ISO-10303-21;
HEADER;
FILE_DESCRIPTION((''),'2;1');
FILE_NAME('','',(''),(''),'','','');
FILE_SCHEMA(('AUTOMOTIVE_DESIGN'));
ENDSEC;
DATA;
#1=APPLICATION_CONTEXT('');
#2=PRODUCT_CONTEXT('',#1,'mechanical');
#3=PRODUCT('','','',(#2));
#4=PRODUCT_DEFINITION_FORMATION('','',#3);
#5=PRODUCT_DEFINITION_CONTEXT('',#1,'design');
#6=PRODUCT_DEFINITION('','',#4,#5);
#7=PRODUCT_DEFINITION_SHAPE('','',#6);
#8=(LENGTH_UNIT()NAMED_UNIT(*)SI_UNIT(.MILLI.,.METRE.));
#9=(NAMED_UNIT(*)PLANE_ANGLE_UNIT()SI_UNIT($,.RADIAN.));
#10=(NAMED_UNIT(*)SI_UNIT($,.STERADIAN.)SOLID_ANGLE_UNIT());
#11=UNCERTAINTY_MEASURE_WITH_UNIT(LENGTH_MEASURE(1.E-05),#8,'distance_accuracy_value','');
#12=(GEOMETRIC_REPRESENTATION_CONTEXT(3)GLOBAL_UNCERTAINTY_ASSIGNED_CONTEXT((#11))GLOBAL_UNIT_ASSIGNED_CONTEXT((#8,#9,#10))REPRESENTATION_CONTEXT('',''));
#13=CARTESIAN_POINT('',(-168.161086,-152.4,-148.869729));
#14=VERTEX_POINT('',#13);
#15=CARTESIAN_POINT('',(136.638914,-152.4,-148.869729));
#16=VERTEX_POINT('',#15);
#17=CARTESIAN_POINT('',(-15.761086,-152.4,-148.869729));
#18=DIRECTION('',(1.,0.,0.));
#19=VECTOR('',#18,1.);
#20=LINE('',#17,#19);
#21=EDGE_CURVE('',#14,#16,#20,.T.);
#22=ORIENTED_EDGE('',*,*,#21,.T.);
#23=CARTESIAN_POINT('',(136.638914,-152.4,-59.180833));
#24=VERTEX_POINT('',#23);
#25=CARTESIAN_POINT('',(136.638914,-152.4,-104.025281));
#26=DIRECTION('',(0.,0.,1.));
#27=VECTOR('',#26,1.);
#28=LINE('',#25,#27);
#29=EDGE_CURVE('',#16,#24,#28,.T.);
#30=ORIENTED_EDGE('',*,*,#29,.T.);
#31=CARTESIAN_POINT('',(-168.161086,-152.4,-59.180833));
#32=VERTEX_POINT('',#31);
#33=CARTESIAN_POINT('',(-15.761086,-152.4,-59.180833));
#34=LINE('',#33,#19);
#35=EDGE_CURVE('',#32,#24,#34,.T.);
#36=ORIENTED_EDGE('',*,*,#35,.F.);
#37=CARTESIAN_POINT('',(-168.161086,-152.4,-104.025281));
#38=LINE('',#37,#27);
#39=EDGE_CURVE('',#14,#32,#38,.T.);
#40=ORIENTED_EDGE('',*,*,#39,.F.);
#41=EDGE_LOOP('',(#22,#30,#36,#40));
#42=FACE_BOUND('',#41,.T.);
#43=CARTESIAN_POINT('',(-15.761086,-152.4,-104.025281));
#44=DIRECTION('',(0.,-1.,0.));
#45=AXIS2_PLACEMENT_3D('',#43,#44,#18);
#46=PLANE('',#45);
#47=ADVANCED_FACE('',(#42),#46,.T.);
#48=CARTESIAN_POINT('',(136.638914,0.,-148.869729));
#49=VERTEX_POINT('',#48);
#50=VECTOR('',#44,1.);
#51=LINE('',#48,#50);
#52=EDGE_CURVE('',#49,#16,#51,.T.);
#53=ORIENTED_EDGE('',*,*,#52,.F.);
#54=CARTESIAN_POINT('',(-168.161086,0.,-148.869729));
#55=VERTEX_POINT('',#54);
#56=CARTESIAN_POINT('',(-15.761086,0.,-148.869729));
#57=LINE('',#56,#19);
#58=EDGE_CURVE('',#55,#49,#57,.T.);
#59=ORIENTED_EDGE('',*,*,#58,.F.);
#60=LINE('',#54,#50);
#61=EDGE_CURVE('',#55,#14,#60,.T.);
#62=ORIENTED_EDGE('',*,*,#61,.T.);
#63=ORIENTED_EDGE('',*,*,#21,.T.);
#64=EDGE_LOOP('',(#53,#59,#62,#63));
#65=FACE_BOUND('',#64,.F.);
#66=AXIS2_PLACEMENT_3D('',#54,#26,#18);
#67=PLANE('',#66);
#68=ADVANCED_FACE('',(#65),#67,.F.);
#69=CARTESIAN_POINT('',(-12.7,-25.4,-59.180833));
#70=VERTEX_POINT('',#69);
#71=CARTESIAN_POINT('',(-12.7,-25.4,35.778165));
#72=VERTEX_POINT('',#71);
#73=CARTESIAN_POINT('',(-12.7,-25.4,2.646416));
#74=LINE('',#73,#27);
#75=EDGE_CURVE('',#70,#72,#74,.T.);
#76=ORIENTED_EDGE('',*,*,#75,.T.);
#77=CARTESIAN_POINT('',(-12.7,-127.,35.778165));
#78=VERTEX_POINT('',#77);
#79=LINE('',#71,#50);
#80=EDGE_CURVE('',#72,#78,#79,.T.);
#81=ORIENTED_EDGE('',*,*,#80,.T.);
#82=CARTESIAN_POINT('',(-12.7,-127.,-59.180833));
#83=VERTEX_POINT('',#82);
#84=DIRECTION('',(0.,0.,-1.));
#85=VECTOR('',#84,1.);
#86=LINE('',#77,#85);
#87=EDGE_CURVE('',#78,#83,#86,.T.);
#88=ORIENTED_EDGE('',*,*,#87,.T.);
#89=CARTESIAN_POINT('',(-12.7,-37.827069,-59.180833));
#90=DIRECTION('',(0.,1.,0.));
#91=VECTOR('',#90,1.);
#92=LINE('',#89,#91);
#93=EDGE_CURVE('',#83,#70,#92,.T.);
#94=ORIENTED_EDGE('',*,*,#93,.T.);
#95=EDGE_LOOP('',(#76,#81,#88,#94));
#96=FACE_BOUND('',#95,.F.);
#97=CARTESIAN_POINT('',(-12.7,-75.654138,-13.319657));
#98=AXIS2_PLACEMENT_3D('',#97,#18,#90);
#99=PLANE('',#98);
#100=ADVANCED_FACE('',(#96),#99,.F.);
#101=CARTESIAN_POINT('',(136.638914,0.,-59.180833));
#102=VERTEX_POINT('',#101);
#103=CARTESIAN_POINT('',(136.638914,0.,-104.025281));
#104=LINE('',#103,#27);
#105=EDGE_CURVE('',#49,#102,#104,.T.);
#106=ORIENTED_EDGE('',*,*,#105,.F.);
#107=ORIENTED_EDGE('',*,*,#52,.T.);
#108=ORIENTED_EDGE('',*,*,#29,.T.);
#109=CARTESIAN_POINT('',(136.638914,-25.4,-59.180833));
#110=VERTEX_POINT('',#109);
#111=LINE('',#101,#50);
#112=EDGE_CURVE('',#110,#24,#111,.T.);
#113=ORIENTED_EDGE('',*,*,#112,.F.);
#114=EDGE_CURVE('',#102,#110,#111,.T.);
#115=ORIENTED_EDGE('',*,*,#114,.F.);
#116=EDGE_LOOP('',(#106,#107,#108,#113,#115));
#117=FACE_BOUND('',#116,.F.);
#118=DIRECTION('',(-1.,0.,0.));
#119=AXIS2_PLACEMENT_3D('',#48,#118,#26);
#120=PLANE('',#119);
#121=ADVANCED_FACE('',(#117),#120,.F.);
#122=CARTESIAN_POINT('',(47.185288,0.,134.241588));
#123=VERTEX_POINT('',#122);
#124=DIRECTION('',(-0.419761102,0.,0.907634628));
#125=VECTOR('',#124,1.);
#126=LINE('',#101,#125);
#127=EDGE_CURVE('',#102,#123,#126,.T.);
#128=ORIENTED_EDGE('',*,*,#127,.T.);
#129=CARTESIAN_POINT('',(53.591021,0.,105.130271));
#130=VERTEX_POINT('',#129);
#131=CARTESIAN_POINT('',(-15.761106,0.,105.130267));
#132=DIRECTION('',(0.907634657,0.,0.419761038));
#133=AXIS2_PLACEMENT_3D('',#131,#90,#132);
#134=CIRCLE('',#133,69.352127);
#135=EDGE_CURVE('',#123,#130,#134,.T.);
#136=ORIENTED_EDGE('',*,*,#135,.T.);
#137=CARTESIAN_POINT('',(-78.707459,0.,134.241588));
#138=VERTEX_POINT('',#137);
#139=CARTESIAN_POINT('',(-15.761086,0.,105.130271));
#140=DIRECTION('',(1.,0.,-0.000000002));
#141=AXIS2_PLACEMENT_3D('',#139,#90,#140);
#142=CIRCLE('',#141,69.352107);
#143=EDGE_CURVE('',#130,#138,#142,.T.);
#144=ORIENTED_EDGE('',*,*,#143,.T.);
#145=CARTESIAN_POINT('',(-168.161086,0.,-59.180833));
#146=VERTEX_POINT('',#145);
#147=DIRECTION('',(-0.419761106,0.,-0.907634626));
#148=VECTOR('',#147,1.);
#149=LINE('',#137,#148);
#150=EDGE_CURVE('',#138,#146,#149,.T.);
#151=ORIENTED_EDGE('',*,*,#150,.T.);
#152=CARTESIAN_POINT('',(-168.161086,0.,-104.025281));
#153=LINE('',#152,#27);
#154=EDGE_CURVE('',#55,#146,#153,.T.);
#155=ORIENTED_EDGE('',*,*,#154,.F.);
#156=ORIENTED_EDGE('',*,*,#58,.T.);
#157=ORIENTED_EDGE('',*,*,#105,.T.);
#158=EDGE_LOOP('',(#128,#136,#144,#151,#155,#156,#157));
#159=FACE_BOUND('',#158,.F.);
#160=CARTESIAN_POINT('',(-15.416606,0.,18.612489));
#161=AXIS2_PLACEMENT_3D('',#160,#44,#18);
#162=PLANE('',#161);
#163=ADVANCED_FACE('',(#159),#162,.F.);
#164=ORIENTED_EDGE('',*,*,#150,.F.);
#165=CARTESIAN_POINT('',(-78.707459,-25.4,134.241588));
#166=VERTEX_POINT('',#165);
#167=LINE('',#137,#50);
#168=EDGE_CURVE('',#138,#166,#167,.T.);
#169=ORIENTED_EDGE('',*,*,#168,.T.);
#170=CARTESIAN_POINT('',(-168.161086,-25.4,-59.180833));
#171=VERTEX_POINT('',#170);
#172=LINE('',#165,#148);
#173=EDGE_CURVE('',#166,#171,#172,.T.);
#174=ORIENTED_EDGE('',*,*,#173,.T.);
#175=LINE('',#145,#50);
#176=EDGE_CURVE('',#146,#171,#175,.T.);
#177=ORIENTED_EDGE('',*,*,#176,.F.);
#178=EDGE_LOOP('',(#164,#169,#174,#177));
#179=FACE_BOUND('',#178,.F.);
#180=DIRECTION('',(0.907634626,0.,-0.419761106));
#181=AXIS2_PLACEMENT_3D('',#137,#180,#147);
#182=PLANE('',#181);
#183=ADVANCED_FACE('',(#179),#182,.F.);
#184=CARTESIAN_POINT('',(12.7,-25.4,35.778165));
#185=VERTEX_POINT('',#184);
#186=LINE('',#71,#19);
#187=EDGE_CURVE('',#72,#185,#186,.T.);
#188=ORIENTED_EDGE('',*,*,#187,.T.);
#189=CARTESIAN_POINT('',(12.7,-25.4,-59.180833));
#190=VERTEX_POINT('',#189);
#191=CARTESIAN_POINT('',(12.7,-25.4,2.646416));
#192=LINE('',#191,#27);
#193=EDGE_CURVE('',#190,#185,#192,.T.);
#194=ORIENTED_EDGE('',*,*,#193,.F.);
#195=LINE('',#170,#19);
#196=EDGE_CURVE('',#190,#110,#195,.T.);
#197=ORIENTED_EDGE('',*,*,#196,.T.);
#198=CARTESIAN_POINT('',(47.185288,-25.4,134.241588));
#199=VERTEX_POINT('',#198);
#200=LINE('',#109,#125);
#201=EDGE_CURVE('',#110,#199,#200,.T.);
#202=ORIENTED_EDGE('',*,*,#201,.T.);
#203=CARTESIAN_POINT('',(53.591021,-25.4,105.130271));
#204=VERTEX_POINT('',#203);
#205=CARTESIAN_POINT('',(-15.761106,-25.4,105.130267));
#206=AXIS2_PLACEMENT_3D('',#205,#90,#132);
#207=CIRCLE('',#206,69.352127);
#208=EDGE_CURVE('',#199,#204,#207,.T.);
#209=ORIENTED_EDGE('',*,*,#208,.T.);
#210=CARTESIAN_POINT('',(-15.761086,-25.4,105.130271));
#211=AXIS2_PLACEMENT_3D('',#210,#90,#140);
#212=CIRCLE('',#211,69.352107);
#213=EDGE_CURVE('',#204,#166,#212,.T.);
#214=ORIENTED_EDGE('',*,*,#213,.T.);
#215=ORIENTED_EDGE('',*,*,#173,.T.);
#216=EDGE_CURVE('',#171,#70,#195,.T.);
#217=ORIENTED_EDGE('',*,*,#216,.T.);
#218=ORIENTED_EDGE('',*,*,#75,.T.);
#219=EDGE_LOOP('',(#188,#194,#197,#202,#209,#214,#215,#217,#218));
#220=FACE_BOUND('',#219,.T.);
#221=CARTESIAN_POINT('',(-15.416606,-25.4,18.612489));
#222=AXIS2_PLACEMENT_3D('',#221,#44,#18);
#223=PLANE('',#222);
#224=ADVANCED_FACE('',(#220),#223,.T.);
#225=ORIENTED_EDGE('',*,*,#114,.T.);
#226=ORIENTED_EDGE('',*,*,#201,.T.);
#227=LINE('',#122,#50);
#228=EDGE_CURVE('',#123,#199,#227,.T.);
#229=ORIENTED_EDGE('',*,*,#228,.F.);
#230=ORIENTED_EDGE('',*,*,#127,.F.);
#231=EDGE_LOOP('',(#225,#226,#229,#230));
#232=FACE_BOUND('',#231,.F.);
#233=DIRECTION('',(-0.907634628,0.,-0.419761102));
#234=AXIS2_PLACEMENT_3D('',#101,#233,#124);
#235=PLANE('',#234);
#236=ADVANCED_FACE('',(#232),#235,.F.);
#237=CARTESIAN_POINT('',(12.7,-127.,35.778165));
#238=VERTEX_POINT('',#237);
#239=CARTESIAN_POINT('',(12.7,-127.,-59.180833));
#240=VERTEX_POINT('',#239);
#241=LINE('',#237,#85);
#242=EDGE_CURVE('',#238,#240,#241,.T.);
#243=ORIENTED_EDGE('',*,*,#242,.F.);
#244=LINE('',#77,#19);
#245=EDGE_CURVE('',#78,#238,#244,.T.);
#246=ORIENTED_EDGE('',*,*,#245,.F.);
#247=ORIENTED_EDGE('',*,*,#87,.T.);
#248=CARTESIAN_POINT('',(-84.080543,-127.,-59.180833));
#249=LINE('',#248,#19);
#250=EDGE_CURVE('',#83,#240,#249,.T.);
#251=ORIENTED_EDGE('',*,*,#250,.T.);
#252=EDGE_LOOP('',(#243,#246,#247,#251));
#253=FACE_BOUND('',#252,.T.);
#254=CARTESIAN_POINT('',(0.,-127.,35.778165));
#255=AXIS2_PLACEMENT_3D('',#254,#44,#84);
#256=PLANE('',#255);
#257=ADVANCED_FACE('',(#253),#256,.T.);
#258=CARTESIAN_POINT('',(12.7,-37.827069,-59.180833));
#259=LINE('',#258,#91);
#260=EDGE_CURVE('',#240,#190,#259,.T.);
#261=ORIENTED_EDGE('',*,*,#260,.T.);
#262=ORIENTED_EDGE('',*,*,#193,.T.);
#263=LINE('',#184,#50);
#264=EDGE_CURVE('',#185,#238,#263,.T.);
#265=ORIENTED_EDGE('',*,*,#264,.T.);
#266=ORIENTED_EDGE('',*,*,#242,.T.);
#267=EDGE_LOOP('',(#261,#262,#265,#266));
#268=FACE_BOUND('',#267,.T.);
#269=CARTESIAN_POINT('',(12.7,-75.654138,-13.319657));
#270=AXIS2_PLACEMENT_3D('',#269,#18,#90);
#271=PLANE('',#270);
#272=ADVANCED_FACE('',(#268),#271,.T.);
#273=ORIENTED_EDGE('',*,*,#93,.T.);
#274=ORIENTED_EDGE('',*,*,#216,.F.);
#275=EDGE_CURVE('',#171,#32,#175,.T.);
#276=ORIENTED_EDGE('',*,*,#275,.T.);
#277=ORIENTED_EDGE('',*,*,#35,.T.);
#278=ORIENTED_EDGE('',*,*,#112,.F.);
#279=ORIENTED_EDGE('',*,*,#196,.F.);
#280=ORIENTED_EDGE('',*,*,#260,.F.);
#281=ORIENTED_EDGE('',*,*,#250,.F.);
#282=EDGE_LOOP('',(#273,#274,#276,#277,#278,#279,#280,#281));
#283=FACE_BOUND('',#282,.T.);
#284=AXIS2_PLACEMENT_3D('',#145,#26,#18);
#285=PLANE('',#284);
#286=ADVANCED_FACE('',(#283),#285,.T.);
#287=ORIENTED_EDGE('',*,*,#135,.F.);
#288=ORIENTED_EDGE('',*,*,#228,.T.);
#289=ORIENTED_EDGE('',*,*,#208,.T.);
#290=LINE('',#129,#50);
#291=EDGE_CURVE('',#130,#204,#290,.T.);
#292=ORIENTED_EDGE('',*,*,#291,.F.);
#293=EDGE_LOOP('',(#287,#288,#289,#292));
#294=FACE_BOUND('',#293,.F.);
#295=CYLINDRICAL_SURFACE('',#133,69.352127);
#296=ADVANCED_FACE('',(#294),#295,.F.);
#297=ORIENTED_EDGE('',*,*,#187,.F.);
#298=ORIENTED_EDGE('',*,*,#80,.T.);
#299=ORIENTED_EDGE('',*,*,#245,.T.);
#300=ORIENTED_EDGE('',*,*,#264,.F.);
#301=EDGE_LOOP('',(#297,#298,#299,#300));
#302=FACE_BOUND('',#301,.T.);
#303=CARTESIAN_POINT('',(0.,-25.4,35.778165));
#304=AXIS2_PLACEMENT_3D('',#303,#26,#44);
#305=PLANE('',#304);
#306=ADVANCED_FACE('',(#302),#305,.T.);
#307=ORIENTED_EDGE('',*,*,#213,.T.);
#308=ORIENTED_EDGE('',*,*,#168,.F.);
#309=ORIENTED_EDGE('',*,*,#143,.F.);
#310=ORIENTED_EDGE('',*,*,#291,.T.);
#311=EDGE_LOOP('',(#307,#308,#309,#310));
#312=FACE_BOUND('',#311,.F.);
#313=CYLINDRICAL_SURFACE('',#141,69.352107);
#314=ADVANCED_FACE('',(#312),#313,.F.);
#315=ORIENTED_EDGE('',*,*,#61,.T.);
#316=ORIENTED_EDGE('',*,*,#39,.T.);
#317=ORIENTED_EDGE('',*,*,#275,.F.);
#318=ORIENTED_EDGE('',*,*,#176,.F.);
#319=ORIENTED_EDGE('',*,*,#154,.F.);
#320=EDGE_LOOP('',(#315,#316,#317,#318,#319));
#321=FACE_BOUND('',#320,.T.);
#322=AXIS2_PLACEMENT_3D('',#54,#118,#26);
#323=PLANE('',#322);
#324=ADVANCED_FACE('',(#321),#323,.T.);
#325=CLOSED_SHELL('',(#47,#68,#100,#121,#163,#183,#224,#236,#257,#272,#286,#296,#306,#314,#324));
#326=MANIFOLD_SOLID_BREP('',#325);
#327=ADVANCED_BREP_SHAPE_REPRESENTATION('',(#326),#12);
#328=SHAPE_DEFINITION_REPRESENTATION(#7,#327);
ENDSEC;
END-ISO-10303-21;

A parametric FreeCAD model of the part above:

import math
import FreeCAD as App
import Part
import Sketcher

V = App.Vector
Q = App.Units.Quantity

doc = App.newDocument("Part")
body = doc.addObject("PartDesign::Body", "Body")

sketch1 = body.newObject("Sketcher::SketchObject", "Sketch")
sketch1.AttachmentSupport = (doc.getObject("XZ_Plane"), [""])
sketch1.MapMode = "FlatFace"
sketch1.addGeometry([
    Part.LineSegment(V(-168.161086, -59.180833, 0), V(-168.161086, -148.869729, 0)),
    Part.LineSegment(V(-168.161086, -148.869729, 0), V(136.638914, -148.869729, 0)),
    Part.LineSegment(V(136.638914, -148.869729, 0), V(136.638914, -59.180833, 0)),
    Part.LineSegment(V(136.638914, -59.180833, 0), V(-168.161086, -59.180833, 0)),
], False)
sketch1.addConstraint([
    Sketcher.Constraint("Coincident", 0, 2, 1, 1),
    Sketcher.Constraint("Coincident", 1, 2, 2, 1),
    Sketcher.Constraint("Coincident", 2, 2, 3, 1),
    Sketcher.Constraint("Coincident", 3, 2, 0, 1),
    Sketcher.Constraint("Vertical", 0),
    Sketcher.Constraint("Horizontal", 1),
    Sketcher.Constraint("Vertical", 2),
    Sketcher.Constraint("Horizontal", 3),
    Sketcher.Constraint("DistanceX", 1, 1, 1, 2, Q("12 in")),
    Sketcher.Constraint("DistanceY", 0, 2, 0, 1, Q("89.688896 mm")),
    Sketcher.Constraint("DistanceY", 0, 2, -1, 1, Q("148.869729 mm")),
    Sketcher.Constraint("DistanceX", 0, 2, -1, 1, Q("168.161086 mm")),
])
pad1 = body.newObject("PartDesign::Pad", "Pad")
pad1.Profile = sketch1
pad1.Length = Q("6 in")

sketch2 = body.newObject("Sketcher::SketchObject", "Sketch001")
sketch2.AttachmentSupport = (doc.getObject("XZ_Plane"), [""])
sketch2.MapMode = "FlatFace"
sketch2.addGeometry([
    Part.LineSegment(V(-78.707459, 134.241588, 0), V(-168.161086, -59.180833, 0)),
    Part.LineSegment(V(-168.161086, -59.180833, 0), V(136.638914, -59.180833, 0)),
    Part.LineSegment(V(136.638914, -59.180833, 0), V(47.185288, 134.241588, 0)),
    Part.ArcOfCircle(Part.Circle(V(-15.761106, 105.130267, 0), V(0, 0, 1), 69.352127), math.radians(0.000003), math.radians(24.819502)),
    Part.ArcOfCircle(Part.Circle(V(-15.761086, 105.130271, 0), V(0, 0, 1), 69.352107), math.radians(155.180494), math.radians(360)),
], False)
sketch2.addConstraint([
    Sketcher.Constraint("Coincident", 0, 2, 1, 1),
    Sketcher.Constraint("Coincident", 1, 2, 2, 1),
    Sketcher.Constraint("Coincident", 2, 2, 3, 2),
    Sketcher.Constraint("Coincident", 3, 1, 4, 2),
    Sketcher.Constraint("Coincident", 4, 1, 0, 1),
    Sketcher.Constraint("Horizontal", 1),
    Sketcher.Constraint("DistanceX", 1, 1, 1, 2, Q("12 in")),
    Sketcher.Constraint("DistanceX", 0, 2, 4, 3, Q("6 in")),
    Sketcher.Constraint("Radius", 3, Q("69.352127 mm")),
    Sketcher.Constraint("Radius", 4, Q("69.352107 mm")),
    Sketcher.Constraint("DistanceY", 0, 2, 3, 3, Q("164.3111 mm")),
    Sketcher.Constraint("Distance", 0, Q("213.10604 mm")),
    Sketcher.Constraint("Distance", 2, Q("213.10604 mm")),
    Sketcher.Constraint("DistanceY", -1, 1, 4, 3, Q("105.130271 mm")),
    Sketcher.Constraint("DistanceY", -1, 1, 2, 2, Q("134.241588 mm")),
    Sketcher.Constraint("DistanceX", -1, 1, 3, 1, Q("53.591021 mm")),
    Sketcher.Constraint("DistanceY", -1, 1, 3, 1, Q("105.130271 mm")),
])
pad2 = body.newObject("PartDesign::Pad", "Pad001")
pad2.Profile = sketch2
pad2.Length = Q("1 in")

sketch3 = body.newObject("Sketcher::SketchObject", "Sketch002")
sketch3.AttachmentSupport = (doc.getObject("YZ_Plane"), [""])
sketch3.MapMode = "FlatFace"
sketch3.addGeometry([
    Part.LineSegment(V(-23.240424, -61.891118, 0), V(-25.4, 35.778165, 0)),
    Part.LineSegment(V(-25.4, 35.778165, 0), V(-127, 35.778165, 0)),
    Part.LineSegment(V(-127, 35.778165, 0), V(-127, -61.891118, 0)),
    Part.LineSegment(V(-127, -61.891118, 0), V(-23.240424, -61.891118, 0)),
], False)
sketch3.addConstraint([
    Sketcher.Constraint("Coincident", 0, 2, 1, 1),
    Sketcher.Constraint("Coincident", 1, 2, 2, 1),
    Sketcher.Constraint("Coincident", 2, 2, 3, 1),
    Sketcher.Constraint("Coincident", 3, 2, 0, 1),
    Sketcher.Constraint("Horizontal", 1),
    Sketcher.Constraint("Vertical", 2),
    Sketcher.Constraint("Horizontal", 3),
    Sketcher.Constraint("DistanceX", 1, 2, 1, 1, Q("4 in")),
    Sketcher.Constraint("DistanceX", 0, 2, -1, 1, Q("1 in")),
    Sketcher.Constraint("DistanceX", 3, 1, 3, 2, Q("103.759576 mm")),
    Sketcher.Constraint("DistanceY", 2, 2, 2, 1, Q("97.669283 mm")),
    Sketcher.Constraint("DistanceY", -1, 1, 0, 2, Q("35.778165 mm")),
])
pad3 = body.newObject("PartDesign::Pad", "Pad002")
pad3.Profile = sketch3
pad3.Length = Q("1 in")
pad3.Midplane = True

doc.recompute()
